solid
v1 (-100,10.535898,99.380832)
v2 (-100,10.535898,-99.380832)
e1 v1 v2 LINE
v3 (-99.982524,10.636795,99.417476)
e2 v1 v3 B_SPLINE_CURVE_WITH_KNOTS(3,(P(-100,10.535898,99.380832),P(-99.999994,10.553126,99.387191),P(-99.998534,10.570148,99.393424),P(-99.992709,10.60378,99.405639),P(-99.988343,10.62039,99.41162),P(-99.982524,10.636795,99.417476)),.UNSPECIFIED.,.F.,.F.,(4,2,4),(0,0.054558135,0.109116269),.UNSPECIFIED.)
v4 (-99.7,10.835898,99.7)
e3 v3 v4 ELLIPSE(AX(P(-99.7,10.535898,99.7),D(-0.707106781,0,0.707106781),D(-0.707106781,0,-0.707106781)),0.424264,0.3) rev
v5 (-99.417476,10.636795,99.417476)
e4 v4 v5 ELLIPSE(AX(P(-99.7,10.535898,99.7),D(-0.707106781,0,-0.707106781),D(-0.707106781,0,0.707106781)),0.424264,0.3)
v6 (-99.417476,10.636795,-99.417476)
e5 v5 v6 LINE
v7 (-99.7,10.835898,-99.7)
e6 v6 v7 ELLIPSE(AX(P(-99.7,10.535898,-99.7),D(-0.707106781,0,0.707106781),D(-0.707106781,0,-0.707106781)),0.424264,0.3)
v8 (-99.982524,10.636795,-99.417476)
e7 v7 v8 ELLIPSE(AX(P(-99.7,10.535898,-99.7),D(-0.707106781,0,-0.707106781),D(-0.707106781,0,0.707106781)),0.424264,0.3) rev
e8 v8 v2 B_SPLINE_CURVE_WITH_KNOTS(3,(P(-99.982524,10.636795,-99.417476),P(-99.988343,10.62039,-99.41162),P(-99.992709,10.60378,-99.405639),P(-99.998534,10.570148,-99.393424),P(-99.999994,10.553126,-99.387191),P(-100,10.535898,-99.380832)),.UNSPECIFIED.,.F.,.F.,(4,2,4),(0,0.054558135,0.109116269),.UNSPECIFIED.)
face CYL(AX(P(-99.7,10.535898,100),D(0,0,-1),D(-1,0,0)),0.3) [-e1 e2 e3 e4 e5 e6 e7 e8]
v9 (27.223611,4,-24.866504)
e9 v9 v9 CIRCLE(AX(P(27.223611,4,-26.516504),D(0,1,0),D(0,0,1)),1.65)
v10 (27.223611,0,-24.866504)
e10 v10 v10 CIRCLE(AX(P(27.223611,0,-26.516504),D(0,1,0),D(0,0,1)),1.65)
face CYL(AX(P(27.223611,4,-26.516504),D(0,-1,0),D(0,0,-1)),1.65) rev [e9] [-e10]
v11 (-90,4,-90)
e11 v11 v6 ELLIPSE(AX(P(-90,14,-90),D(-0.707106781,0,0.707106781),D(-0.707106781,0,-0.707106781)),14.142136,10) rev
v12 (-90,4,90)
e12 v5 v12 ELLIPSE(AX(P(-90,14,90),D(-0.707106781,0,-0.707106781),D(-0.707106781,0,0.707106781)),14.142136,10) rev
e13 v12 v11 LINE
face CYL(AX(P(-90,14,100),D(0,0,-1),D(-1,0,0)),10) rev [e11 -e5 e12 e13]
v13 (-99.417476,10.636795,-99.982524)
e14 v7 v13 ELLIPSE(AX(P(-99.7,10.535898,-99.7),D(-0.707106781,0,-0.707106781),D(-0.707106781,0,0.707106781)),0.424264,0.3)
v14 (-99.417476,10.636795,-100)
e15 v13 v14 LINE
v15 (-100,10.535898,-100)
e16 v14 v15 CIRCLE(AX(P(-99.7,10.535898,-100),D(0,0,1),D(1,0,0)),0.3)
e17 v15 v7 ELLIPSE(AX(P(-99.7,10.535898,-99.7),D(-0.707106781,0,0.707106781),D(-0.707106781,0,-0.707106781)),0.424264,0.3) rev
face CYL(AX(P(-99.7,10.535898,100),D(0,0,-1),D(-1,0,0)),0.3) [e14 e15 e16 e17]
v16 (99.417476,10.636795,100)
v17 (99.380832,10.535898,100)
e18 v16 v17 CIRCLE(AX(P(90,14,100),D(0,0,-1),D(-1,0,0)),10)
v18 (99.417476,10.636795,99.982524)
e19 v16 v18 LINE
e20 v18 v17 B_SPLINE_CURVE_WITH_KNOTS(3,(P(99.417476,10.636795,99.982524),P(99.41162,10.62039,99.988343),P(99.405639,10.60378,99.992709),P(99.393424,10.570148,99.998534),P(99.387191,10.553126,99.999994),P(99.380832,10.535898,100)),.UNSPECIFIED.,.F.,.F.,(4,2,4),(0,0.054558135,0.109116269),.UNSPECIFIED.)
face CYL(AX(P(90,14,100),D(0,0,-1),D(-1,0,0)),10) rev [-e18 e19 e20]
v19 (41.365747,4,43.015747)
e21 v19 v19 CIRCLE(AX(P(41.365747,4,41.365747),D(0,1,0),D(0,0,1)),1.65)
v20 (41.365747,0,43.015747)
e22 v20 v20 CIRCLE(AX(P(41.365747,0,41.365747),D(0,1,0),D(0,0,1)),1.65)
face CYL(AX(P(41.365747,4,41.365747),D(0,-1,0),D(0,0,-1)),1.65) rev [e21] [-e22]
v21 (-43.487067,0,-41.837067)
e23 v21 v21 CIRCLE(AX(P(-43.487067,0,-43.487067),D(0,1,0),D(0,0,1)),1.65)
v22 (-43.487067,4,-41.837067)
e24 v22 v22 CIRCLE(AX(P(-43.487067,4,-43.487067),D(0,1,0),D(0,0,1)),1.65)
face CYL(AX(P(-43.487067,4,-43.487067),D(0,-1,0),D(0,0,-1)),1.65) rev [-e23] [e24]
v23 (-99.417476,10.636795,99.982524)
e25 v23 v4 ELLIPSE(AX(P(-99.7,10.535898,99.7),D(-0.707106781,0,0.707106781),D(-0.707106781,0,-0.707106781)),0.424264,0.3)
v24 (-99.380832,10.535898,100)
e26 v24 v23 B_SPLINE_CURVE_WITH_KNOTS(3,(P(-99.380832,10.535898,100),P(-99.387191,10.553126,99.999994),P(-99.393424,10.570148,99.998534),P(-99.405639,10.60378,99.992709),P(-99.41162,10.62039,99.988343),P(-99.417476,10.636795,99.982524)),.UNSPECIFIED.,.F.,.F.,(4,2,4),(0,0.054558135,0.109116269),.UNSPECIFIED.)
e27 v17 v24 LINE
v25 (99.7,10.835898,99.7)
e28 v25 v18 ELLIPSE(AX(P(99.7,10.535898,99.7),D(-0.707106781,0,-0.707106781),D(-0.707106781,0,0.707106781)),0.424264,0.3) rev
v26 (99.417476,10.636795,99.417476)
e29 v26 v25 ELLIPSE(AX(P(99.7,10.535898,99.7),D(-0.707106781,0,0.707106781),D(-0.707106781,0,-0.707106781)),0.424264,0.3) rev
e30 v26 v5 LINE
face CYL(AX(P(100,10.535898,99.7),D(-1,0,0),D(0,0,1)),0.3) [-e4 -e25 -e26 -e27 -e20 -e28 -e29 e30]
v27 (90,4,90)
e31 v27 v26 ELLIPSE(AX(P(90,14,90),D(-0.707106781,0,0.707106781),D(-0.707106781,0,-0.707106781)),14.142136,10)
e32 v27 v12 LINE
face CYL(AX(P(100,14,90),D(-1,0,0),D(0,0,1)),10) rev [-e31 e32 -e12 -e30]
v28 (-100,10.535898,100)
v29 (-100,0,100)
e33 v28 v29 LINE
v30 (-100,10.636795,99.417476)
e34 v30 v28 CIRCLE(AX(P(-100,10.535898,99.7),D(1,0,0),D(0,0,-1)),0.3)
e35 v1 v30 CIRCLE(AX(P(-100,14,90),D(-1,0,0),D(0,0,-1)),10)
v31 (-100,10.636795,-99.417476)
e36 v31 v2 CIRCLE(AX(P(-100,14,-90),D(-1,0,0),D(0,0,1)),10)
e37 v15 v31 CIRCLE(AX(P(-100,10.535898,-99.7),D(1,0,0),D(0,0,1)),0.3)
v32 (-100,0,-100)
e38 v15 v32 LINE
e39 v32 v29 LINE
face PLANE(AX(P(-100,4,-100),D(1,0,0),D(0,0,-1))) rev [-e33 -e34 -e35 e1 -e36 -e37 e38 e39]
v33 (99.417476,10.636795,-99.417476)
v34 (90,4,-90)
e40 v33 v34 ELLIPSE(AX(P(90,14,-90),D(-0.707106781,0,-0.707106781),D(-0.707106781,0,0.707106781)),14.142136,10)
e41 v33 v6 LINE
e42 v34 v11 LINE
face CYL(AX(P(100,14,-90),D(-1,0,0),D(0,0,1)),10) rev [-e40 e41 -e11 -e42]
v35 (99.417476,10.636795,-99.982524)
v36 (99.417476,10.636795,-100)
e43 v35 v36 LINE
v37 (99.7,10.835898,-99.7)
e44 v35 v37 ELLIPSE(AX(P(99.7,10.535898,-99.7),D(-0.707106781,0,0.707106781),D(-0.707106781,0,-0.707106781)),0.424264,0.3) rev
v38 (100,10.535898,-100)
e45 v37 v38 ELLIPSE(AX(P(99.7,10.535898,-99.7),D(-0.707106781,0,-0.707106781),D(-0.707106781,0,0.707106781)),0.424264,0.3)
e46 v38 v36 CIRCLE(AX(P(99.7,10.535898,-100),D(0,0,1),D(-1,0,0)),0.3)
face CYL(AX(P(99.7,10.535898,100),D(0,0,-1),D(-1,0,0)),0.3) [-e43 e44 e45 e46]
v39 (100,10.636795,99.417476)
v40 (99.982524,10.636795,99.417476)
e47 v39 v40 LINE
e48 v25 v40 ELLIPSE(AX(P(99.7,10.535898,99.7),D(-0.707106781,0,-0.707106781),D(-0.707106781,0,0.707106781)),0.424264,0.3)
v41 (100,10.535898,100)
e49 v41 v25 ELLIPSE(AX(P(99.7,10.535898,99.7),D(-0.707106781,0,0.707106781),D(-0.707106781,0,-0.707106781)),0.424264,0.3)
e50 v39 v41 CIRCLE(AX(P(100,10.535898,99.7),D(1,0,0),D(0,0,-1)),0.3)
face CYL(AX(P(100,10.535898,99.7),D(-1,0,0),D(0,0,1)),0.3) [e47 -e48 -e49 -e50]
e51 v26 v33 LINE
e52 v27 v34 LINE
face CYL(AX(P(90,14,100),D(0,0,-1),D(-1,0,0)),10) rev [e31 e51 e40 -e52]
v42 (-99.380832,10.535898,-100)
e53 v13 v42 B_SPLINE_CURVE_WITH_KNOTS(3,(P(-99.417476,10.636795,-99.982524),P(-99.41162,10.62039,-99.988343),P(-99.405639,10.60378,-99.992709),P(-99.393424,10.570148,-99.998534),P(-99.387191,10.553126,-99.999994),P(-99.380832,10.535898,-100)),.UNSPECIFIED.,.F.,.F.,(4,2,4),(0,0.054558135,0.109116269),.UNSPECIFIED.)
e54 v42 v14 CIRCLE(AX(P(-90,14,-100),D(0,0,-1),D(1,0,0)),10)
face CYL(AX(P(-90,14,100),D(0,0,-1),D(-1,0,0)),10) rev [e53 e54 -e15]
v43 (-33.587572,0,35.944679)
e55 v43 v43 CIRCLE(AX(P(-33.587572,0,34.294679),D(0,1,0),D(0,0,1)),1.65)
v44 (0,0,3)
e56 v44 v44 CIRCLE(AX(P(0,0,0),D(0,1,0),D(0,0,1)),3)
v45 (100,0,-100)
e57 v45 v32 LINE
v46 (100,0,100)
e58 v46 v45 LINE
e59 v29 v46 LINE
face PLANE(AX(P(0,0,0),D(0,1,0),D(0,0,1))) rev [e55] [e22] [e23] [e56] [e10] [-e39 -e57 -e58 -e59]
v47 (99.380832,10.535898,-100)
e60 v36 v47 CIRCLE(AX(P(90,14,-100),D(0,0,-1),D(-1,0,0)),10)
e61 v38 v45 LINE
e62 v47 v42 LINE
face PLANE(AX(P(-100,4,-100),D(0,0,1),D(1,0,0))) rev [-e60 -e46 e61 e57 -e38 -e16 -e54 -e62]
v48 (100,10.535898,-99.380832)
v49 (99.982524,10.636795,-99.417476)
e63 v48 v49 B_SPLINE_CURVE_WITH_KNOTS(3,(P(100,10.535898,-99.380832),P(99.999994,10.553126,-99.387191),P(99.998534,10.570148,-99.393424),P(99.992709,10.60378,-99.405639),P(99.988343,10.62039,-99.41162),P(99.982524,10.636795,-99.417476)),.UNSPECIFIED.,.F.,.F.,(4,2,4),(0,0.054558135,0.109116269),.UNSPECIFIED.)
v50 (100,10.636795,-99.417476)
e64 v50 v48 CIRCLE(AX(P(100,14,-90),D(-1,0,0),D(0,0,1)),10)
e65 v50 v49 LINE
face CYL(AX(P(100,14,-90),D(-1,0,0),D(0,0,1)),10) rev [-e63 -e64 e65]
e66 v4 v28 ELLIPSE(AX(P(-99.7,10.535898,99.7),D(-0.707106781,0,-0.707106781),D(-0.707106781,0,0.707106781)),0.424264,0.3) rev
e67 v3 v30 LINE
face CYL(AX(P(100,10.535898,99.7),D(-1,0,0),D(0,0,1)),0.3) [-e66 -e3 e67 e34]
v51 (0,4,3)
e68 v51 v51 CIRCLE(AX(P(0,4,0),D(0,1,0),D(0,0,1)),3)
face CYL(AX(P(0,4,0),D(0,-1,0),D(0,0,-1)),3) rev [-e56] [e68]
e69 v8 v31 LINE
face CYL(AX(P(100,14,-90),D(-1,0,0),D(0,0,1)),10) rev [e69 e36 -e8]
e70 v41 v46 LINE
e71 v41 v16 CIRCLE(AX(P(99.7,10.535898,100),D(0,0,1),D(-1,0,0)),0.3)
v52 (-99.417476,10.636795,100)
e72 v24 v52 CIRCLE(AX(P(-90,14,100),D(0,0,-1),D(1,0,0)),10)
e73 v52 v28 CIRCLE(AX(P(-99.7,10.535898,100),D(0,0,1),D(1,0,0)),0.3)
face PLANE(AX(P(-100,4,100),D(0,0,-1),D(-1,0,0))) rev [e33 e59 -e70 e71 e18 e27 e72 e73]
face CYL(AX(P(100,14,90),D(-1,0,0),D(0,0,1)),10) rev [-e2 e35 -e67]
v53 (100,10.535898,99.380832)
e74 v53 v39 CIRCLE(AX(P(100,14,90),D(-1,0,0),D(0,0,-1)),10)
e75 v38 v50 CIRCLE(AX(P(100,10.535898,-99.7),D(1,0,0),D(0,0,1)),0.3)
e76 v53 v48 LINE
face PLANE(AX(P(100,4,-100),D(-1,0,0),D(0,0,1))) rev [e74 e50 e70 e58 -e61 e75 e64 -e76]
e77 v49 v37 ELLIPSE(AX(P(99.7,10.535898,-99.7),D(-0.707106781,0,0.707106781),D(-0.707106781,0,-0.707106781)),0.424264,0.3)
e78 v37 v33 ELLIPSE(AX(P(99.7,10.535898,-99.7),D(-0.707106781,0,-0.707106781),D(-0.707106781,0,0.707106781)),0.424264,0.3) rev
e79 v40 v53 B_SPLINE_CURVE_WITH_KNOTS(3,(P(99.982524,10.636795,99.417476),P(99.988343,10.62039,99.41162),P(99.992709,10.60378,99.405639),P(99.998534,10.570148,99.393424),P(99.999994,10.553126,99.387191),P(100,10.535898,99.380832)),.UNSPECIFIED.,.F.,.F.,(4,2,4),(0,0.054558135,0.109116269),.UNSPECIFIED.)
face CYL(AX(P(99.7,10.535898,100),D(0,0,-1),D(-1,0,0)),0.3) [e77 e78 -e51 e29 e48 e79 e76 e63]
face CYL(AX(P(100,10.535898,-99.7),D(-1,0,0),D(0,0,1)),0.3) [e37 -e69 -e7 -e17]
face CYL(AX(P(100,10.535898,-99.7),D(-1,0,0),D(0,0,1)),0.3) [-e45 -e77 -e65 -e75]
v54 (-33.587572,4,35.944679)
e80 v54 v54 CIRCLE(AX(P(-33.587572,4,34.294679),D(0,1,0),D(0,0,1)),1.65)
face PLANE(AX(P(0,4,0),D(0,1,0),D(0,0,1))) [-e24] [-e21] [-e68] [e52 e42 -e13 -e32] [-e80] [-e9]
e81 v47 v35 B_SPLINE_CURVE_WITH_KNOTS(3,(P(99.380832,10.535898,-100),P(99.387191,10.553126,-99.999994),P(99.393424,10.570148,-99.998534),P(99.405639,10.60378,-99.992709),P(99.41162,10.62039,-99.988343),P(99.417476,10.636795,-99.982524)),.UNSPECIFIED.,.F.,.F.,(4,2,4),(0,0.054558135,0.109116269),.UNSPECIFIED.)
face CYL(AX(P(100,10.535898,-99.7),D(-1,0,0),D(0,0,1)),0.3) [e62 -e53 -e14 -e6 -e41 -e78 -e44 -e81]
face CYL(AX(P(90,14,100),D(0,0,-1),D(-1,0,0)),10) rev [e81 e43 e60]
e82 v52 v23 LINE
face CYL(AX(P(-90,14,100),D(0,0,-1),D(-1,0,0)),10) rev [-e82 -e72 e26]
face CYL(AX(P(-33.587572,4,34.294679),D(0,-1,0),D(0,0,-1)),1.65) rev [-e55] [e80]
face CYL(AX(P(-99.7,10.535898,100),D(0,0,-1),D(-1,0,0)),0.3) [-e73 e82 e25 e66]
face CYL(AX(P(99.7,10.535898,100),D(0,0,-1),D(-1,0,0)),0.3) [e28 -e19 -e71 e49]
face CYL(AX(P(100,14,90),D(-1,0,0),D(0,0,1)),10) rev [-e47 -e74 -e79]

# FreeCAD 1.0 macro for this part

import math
import FreeCAD as App
import Part
import Sketcher
Q = App.Units.Quantity

doc = App.newDocument("Part")
body = doc.addObject("PartDesign::Body", "Body")

# Sketch on XZ plane
sketch1 = doc.addObject("Sketcher::SketchObject", "Sketch")
body.addObject(sketch1)
sketch1.AttachmentSupport = (doc.XZ_Plane, [""])
sketch1.MapMode = "FlatFace"
sketch1.addGeometry([
    Part.LineSegment(App.Vector(-100, -100, 0), App.Vector(-100, 100, 0)),  # 0
    Part.LineSegment(App.Vector(-100, 100, 0), App.Vector(100, 100, 0)),  # 1
    Part.LineSegment(App.Vector(100, 100, 0), App.Vector(100, -100, 0)),  # 2
    Part.LineSegment(App.Vector(100, -100, 0), App.Vector(-100, -100, 0)),  # 3
    Part.Circle(App.Vector(-33.6, 34.3, 0), App.Vector(0, 0, 1), 1.6),  # 4
    Part.Circle(App.Vector(41.4, 41.4, 0), App.Vector(0, 0, 1), 1.6),  # 5
    Part.Circle(App.Vector(0, 0, 0), App.Vector(0, 0, 1), 3),  # 6
    Part.Circle(App.Vector(-43.5, -43.5, 0), App.Vector(0, 0, 1), 1.6),  # 7
    Part.Circle(App.Vector(27.2, -26.5, 0), App.Vector(0, 0, 1), 1.6),  # 8
], False)
sketch1.addConstraint([
    Sketcher.Constraint("Coincident", 0, 2, 1, 1),
    Sketcher.Constraint("Coincident", 1, 2, 2, 1),
    Sketcher.Constraint("Coincident", 2, 2, 3, 1),
    Sketcher.Constraint("Coincident", 3, 2, 0, 1),
    Sketcher.Constraint("Vertical", 0),
    Sketcher.Constraint("Horizontal", 1),
    Sketcher.Constraint("Vertical", 2),
    Sketcher.Constraint("Horizontal", 3),
    Sketcher.Constraint("Coincident", 6, 3, -1, 1),
    Sketcher.Constraint("Equal", 4, 5),
    Sketcher.Constraint("Equal", 5, 7),
    Sketcher.Constraint("Equal", 7, 8),
    Sketcher.Constraint("Symmetric", 0, 2, 2, 2, -1, 1),
    Sketcher.Constraint("Equal", 3, 0),
    Sketcher.Constraint("Diameter", 6, Q("6 mm")),
    Sketcher.Constraint("Diameter", 4, Q("3.3 mm")),
    Sketcher.Constraint("DistanceX", 1, 1, 1, 2, Q("200 mm")),
    Sketcher.Constraint("DistanceY", -1, 1, 4, 3, Q("34.294679 mm")),
    Sketcher.Constraint("DistanceX", -1, 1, 8, 3, Q("27.223611 mm")),
    Sketcher.Constraint("DistanceX", 4, 3, 5, 3, Q("74.953319 mm")),
    Sketcher.Constraint("DistanceY", 8, 3, 5, 3, Q("67.882251 mm")),
    Sketcher.Constraint("DistanceX", 7, 3, 8, 3, Q("70.710678 mm")),
    Sketcher.Constraint("DistanceX", 4, 3, -1, 1, Q("33.587572 mm")),
    Sketcher.Constraint("DistanceY", -1, 1, 5, 3, Q("41.365747 mm")),
    Sketcher.Constraint("DistanceY", 7, 3, -1, 1, Q("43.487067 mm")),
])
pad1 = doc.addObject("PartDesign::Pad", "Pad")
body.addObject(pad1)
pad1.Profile = sketch1
pad1.Length = 4
pad1.Reversed = True

# Sketch on YZ plane
sketch2 = doc.addObject("Sketcher::SketchObject", "Sketch001")
body.addObject(sketch2)
sketch2.AttachmentSupport = (doc.YZ_Plane, [""])
sketch2.MapMode = "FlatFace"
sketch2.addGeometry([
    Part.LineSegment(App.Vector(4, 100, 0), App.Vector(4, 90, 0)),  # 0
    Part.ArcOfCircle(Part.Circle(App.Vector(14, 90, 0), App.Vector(0, 0, 1), 10), math.radians(110), math.radians(180)),  # 1
    Part.ArcOfCircle(Part.Circle(App.Vector(10.54, 99.7, 0), App.Vector(0, 0, 1), 0.3), math.radians(-70), math.radians(90)),  # 2
    Part.LineSegment(App.Vector(10.54, 100, 0), App.Vector(4, 100, 0)),  # 3
    Part.LineSegment(App.Vector(4, -100, 0), App.Vector(10.54, -100, 0)),  # 4
    Part.ArcOfCircle(Part.Circle(App.Vector(10.54, -99.7, 0), App.Vector(0, 0, 1), 0.3), math.radians(-90), math.radians(70)),  # 5
    Part.ArcOfCircle(Part.Circle(App.Vector(14, -90, 0), App.Vector(0, 0, 1), 10), math.radians(180), math.radians(250)),  # 6
    Part.LineSegment(App.Vector(4, -90, 0), App.Vector(4, -100, 0)),  # 7
], False)
sketch2.addConstraint([
    Sketcher.Constraint("Tangent", 0, 2, 1, 2),
    Sketcher.Constraint("Tangent", 1, 1, 2, 1),
    Sketcher.Constraint("Tangent", 2, 2, 3, 1),
    Sketcher.Constraint("Coincident", 3, 2, 0, 1),
    Sketcher.Constraint("Tangent", 4, 2, 5, 1),
    Sketcher.Constraint("Tangent", 5, 2, 6, 2),
    Sketcher.Constraint("Tangent", 6, 1, 7, 1),
    Sketcher.Constraint("Coincident", 7, 2, 4, 1),
    Sketcher.Constraint("Vertical", 0),
    Sketcher.Constraint("Horizontal", 3),
    Sketcher.Constraint("Horizontal", 4),
    Sketcher.Constraint("Vertical", 7),
    Sketcher.Constraint("Equal", 2, 5),
    Sketcher.Constraint("Equal", 1, 6),
    Sketcher.Constraint("Symmetric", 2, 3, 5, 3, -1),
    Sketcher.Constraint("Vertical", 1, 3, 6, 3),
    Sketcher.Constraint("Radius", 1, Q("10 mm")),
    Sketcher.Constraint("Radius", 2, Q("0.3 mm")),
    Sketcher.Constraint("DistanceY", 0, 2, 0, 1, Q("10 mm")),
    Sketcher.Constraint("DistanceX", -1, 1, 1, 3, Q("14 mm")),
    Sketcher.Constraint("DistanceY", -1, 1, 1, 3, Q("90 mm")),
])
pad2 = doc.addObject("PartDesign::Pad", "Pad001")
body.addObject(pad2)
pad2.Profile = sketch2
pad2.Length = 200
pad2.Midplane = True

# Sketch on XY plane
sketch3 = doc.addObject("Sketcher::SketchObject", "Sketch002")
body.addObject(sketch3)
sketch3.AttachmentSupport = (doc.XY_Plane, [""])
sketch3.MapMode = "FlatFace"
sketch3.addGeometry([
    Part.LineSegment(App.Vector(-100, 4, 0), App.Vector(-90, 4, 0)),  # 0
    Part.ArcOfCircle(Part.Circle(App.Vector(-90, 14, 0), App.Vector(0, 0, 1), 10), math.radians(-160), math.radians(-90)),  # 1
    Part.ArcOfCircle(Part.Circle(App.Vector(-99.7, 10.54, 0), App.Vector(0, 0, 1), 0.3), math.radians(20), math.radians(180)),  # 2
    Part.LineSegment(App.Vector(-100, 10.54, 0), App.Vector(-100, 4, 0)),  # 3
    Part.LineSegment(App.Vector(100, 4, 0), App.Vector(100, 10.54, 0)),  # 4
    Part.ArcOfCircle(Part.Circle(App.Vector(99.7, 10.54, 0), App.Vector(0, 0, 1), 0.3), math.radians(0), math.radians(160)),  # 5
    Part.ArcOfCircle(Part.Circle(App.Vector(90, 14, 0), App.Vector(0, 0, 1), 10), math.radians(-90), math.radians(-20)),  # 6
    Part.LineSegment(App.Vector(90, 4, 0), App.Vector(100, 4, 0)),  # 7
], False)
sketch3.addConstraint([
    Sketcher.Constraint("Tangent", 0, 2, 1, 2),
    Sketcher.Constraint("Tangent", 1, 1, 2, 1),
    Sketcher.Constraint("Tangent", 2, 2, 3, 1),
    Sketcher.Constraint("Coincident", 3, 2, 0, 1),
    Sketcher.Constraint("Tangent", 4, 2, 5, 1),
    Sketcher.Constraint("Tangent", 5, 2, 6, 2),
    Sketcher.Constraint("Tangent", 6, 1, 7, 1),
    Sketcher.Constraint("Coincident", 7, 2, 4, 1),
    Sketcher.Constraint("Horizontal", 0),
    Sketcher.Constraint("Vertical", 3),
    Sketcher.Constraint("Vertical", 4),
    Sketcher.Constraint("Horizontal", 7),
    Sketcher.Constraint("Equal", 2, 5),
    Sketcher.Constraint("Equal", 1, 6),
    Sketcher.Constraint("Symmetric", 2, 3, 5, 3, -2),
    Sketcher.Constraint("Horizontal", 1, 3, 6, 3),
    Sketcher.Constraint("Radius", 1, Q("10 mm")),
    Sketcher.Constraint("Radius", 2, Q("0.3 mm")),
    Sketcher.Constraint("DistanceX", 0, 1, 0, 2, Q("10 mm")),
    Sketcher.Constraint("DistanceX", 1, 3, -1, 1, Q("90 mm")),
    Sketcher.Constraint("DistanceY", -1, 1, 1, 3, Q("14 mm")),
])
pad3 = doc.addObject("PartDesign::Pad", "Pad002")
body.addObject(pad3)
pad3.Profile = sketch3
pad3.Length = 200
pad3.Midplane = True

doc.recompute()
